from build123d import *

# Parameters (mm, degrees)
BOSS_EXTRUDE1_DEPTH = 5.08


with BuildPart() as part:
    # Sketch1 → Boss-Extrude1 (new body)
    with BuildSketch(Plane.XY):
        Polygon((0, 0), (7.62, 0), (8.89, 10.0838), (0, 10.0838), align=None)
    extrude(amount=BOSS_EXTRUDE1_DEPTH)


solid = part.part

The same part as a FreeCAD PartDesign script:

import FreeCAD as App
import Part
import Sketcher
from FreeCAD import Vector
Q = App.Units.Quantity


def add_polygon(sketch, points):
    """Adds a closed chain of lines whose ends are joined by coincident constraints."""
    first, n = sketch.GeometryCount, len(points)
    for a, b in zip(points, points[1:] + points[:1]):
        sketch.addGeometry(Part.LineSegment(App.Vector(*a, 0), App.Vector(*b, 0)), False)
    for i in range(n):
        sketch.addConstraint(Sketcher.Constraint("Coincident", first + i, 2, first + (i + 1) % n, 1))

doc = App.newDocument("Part")
body = doc.addObject("PartDesign::Body", "Body")

# Sketch on XY plane
sketch1 = body.newObject("Sketcher::SketchObject", "Sketch")
sketch1.AttachmentSupport = (doc.getObject("XY_Plane"), [""])
sketch1.MapMode = "FlatFace"
add_polygon(sketch1, [(0, 0), (7.62, 0), (8.89, 10.0838), (0, 10.0838)])  # lines 0-3
sketch1.addConstraint(Sketcher.Constraint("Horizontal", 0))
sketch1.addConstraint(Sketcher.Constraint("Horizontal", 2))
sketch1.addConstraint(Sketcher.Constraint("Vertical", 3))
sketch1.addConstraint(Sketcher.Constraint("Coincident", 3, 2, -1, 1))
sketch1.addConstraint(Sketcher.Constraint("DistanceX", 0, 1, 0, 2, Q("0.3 in")))
sketch1.addConstraint(Sketcher.Constraint("DistanceX", 2, 2, 2, 1, Q("0.35 in")))
sketch1.addConstraint(Sketcher.Constraint("DistanceY", 3, 2, 3, 1, Q("0.397 in")))
pad1 = body.newObject("PartDesign::Pad", "Pad")
pad1.Profile = sketch1
pad1.Length = Q("0.2 in")

doc.recompute()
